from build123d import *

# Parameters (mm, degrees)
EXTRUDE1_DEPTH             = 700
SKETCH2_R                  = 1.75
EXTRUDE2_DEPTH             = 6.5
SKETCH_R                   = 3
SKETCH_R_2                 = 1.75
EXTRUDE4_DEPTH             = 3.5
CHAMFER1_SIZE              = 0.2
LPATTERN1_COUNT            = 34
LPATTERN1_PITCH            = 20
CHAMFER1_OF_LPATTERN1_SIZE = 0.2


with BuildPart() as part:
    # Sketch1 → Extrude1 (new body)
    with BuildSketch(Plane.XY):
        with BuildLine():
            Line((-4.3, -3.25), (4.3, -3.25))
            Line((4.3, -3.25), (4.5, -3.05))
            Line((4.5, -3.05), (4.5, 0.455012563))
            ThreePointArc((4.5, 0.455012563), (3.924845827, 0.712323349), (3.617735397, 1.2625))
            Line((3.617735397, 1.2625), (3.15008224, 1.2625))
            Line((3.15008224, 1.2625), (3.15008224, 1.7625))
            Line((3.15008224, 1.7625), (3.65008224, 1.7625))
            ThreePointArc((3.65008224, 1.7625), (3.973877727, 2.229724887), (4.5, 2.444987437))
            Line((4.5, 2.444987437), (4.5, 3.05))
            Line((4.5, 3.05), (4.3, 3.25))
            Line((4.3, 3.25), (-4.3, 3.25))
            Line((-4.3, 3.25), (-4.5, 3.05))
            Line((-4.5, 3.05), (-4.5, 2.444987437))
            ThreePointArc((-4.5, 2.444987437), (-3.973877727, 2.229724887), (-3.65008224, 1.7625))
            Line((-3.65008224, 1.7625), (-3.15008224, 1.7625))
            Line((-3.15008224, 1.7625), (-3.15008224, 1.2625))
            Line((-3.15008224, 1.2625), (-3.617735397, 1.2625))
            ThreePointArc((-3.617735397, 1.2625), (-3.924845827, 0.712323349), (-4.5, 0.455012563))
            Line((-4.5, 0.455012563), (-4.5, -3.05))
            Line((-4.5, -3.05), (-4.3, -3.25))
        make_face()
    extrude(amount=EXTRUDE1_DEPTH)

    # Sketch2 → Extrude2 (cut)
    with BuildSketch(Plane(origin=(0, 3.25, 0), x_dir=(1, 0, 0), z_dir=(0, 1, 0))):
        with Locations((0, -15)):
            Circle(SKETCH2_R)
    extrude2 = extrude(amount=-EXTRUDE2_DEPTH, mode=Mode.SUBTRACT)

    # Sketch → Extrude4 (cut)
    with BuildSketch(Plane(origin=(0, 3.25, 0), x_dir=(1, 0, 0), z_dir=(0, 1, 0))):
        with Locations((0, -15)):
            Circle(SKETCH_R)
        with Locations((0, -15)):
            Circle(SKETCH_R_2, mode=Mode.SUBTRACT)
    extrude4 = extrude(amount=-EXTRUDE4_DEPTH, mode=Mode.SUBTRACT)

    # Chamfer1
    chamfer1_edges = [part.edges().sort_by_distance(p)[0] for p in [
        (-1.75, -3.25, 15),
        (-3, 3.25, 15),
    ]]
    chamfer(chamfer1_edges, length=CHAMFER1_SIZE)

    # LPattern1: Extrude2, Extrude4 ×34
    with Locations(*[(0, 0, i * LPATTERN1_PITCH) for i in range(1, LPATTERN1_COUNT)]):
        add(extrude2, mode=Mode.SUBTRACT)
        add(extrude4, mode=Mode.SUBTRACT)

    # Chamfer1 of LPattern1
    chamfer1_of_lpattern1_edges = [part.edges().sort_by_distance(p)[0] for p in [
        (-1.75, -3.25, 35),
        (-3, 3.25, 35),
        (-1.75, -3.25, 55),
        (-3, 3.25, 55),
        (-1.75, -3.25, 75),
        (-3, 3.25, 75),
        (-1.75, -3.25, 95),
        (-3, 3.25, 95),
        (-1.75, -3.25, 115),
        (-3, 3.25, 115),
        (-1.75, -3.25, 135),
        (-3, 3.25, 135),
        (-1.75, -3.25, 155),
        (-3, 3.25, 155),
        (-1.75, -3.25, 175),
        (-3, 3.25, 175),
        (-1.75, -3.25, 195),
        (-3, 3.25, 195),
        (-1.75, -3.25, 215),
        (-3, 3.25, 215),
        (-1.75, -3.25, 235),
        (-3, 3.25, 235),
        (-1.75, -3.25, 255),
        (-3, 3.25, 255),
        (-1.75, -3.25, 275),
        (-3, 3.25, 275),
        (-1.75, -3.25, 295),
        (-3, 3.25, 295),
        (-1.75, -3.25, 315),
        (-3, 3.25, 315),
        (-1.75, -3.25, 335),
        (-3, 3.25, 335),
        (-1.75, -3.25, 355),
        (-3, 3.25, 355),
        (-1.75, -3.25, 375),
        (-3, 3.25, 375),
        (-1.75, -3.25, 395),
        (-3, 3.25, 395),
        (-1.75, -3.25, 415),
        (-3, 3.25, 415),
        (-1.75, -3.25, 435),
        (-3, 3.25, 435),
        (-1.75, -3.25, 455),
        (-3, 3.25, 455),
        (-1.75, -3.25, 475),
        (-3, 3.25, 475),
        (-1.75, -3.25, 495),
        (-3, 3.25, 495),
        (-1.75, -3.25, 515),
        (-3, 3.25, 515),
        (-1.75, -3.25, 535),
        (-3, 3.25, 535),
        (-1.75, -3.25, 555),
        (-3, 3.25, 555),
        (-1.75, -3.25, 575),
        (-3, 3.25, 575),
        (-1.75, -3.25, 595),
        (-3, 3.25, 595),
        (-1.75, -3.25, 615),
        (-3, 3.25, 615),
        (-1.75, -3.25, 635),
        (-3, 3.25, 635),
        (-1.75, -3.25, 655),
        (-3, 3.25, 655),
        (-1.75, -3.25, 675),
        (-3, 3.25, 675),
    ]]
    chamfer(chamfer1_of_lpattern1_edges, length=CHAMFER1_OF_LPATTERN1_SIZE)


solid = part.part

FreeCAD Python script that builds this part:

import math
import FreeCAD as App
import Part
import Sketcher


def edges_at(feature, points):
    """Names of the edges that pass closest to the given points."""
    edges = feature.Shape.Edges
    near = lambda p: min(range(len(edges)), key=lambda i: edges[i].distToShape(Part.Vertex(*p))[0])
    return sorted({f"Edge{near(p) + 1}" for p in points})

doc = App.newDocument("Part")
body = doc.addObject("PartDesign::Body", "Body")

# Sketch on XY plane
sketch1 = body.newObject("Sketcher::SketchObject", "Sketch")
sketch1.AttachmentSupport = (doc.getObject("XY_Plane"), [""])
sketch1.MapMode = "FlatFace"
sketch1.addGeometry([
    Part.LineSegment(App.Vector(-4.3, -3.25, 0), App.Vector(4.3, -3.25, 0)),  # 0
    Part.LineSegment(App.Vector(4.3, -3.25, 0), App.Vector(4.5, -3.05, 0)),  # 1
    Part.LineSegment(App.Vector(4.5, -3.05, 0), App.Vector(4.5, 0.455013, 0)),  # 2
    Part.ArcOfCircle(Part.Circle(App.Vector(4.6, 1.45, 0), App.Vector(0, 0, 1), 1), math.radians(-169.193077), math.radians(-95.739171)),  # 3
    Part.LineSegment(App.Vector(3.617735, 1.2625, 0), App.Vector(3.150082, 1.2625, 0)),  # 4
    Part.LineSegment(App.Vector(3.150082, 1.2625, 0), App.Vector(3.150082, 1.7625, 0)),  # 5
    Part.LineSegment(App.Vector(3.150082, 1.7625, 0), App.Vector(3.650082, 1.7625, 0)),  # 6
    Part.ArcOfCircle(Part.Circle(App.Vector(4.6, 1.45, 0), App.Vector(0, 0, 1), 1), math.radians(95.73917), math.radians(161.790043)),  # 7
    Part.LineSegment(App.Vector(4.5, 2.444987, 0), App.Vector(4.5, 3.05, 0)),  # 8
    Part.LineSegment(App.Vector(4.5, 3.05, 0), App.Vector(4.3, 3.25, 0)),  # 9
    Part.LineSegment(App.Vector(4.3, 3.25, 0), App.Vector(-4.3, 3.25, 0)),  # 10
    Part.LineSegment(App.Vector(-4.3, 3.25, 0), App.Vector(-4.5, 3.05, 0)),  # 11
    Part.LineSegment(App.Vector(-4.5, 3.05, 0), App.Vector(-4.5, 2.444987, 0)),  # 12
    Part.ArcOfCircle(Part.Circle(App.Vector(-4.6, 1.45, 0), App.Vector(0, 0, 1), 1), math.radians(18.209957), math.radians(84.26083)),  # 13
    Part.LineSegment(App.Vector(-3.650082, 1.7625, 0), App.Vector(-3.150082, 1.7625, 0)),  # 14
    Part.LineSegment(App.Vector(-3.150082, 1.7625, 0), App.Vector(-3.150082, 1.2625, 0)),  # 15
    Part.LineSegment(App.Vector(-3.150082, 1.2625, 0), App.Vector(-3.617735, 1.2625, 0)),  # 16
    Part.ArcOfCircle(Part.Circle(App.Vector(-4.6, 1.45, 0), App.Vector(0, 0, 1), 1), math.radians(-84.260829), math.radians(-10.806923)),  # 17
    Part.LineSegment(App.Vector(-4.5, 0.455013, 0), App.Vector(-4.5, -3.05, 0)),  # 18
    Part.LineSegment(App.Vector(-4.5, -3.05, 0), App.Vector(-4.3, -3.25, 0)),  # 19
], False)
sketch1.addConstraint([
    Sketcher.Constraint("Coincident", 0, 2, 1, 1),
    Sketcher.Constraint("Coincident", 1, 2, 2, 1),
    Sketcher.Constraint("Coincident", 2, 2, 3, 2),
    Sketcher.Constraint("Coincident", 3, 1, 4, 1),
    Sketcher.Constraint("Coincident", 4, 2, 5, 1),
    Sketcher.Constraint("Coincident", 5, 2, 6, 1),
    Sketcher.Constraint("Coincident", 6, 2, 7, 2),
    Sketcher.Constraint("Coincident", 7, 1, 8, 1),
    Sketcher.Constraint("Coincident", 8, 2, 9, 1),
    Sketcher.Constraint("Coincident", 9, 2, 10, 1),
    Sketcher.Constraint("Coincident", 10, 2, 11, 1),
    Sketcher.Constraint("Coincident", 11, 2, 12, 1),
    Sketcher.Constraint("Coincident", 12, 2, 13, 2),
    Sketcher.Constraint("Coincident", 13, 1, 14, 1),
    Sketcher.Constraint("Coincident", 14, 2, 15, 1),
    Sketcher.Constraint("Coincident", 15, 2, 16, 1),
    Sketcher.Constraint("Coincident", 16, 2, 17, 2),
    Sketcher.Constraint("Coincident", 17, 1, 18, 1),
    Sketcher.Constraint("Coincident", 18, 2, 19, 1),
    Sketcher.Constraint("Coincident", 19, 2, 0, 1),
    Sketcher.Constraint("Horizontal", 0),
    Sketcher.Constraint("Vertical", 2),
    Sketcher.Constraint("Horizontal", 4),
    Sketcher.Constraint("Vertical", 5),
    Sketcher.Constraint("Horizontal", 6),
    Sketcher.Constraint("Vertical", 8),
    Sketcher.Constraint("Horizontal", 10),
    Sketcher.Constraint("Vertical", 12),
    Sketcher.Constraint("Horizontal", 14),
    Sketcher.Constraint("Vertical", 15),
    Sketcher.Constraint("Horizontal", 16),
    Sketcher.Constraint("Vertical", 18),
    Sketcher.Constraint("Coincident", 7, 3, 3, 3),
    Sketcher.Constraint("Coincident", 17, 3, 13, 3),
    Sketcher.Constraint("Equal", 3, 7),
    Sketcher.Constraint("Equal", 7, 13),
    Sketcher.Constraint("Equal", 13, 17),
    Sketcher.Constraint("Symmetric", 0, 2, 10, 2, -1, 1),
    Sketcher.Constraint("Symmetric", 1, 2, 11, 2, -1, 1),
    Sketcher.Constraint("Symmetric", 8, 2, 18, 2, -1, 1),
    Sketcher.Constraint("Symmetric", 3, 3, 13, 3, -2),
    Sketcher.Constraint("Symmetric", 8, 2, 11, 2, -2),
    Sketcher.Constraint("Symmetric", 5, 2, 14, 2, -2),
    Sketcher.Constraint("Perpendicular", 1, 9),
    Sketcher.Constraint("Perpendicular", 11, 19),
    Sketcher.Constraint("Horizontal", 4, 2, 15, 2),
    Sketcher.Constraint("Vertical", 0, 2, 9, 2),
    Sketcher.Constraint("Equal", 14, 5),
    Sketcher.Constraint("Radius", 3, 1.0),
    Sketcher.Constraint("DistanceX", 0, 1, 0, 2, 8.6),
    Sketcher.Constraint("DistanceX", 6, 1, 6, 2, 0.5),
    Sketcher.Constraint("DistanceX", -1, 1, 3, 3, 4.6),
    Sketcher.Constraint("DistanceX", -1, 1, 1, 2, 4.5),
    Sketcher.Constraint("DistanceY", 0, 2, 7, 3, 4.7),
    Sketcher.Constraint("DistanceY", 3, 3, 8, 2, 1.6),
    Sketcher.Constraint("DistanceY", -1, 1, 3, 1, 1.2625),
])
pad1 = body.newObject("PartDesign::Pad", "Pad")
pad1.Profile = sketch1
pad1.Length = 700

# Sketch on XZ plane
sketch2 = body.newObject("Sketcher::SketchObject", "Sketch001")
sketch2.AttachmentSupport = (doc.getObject("XZ_Plane"), [""])
sketch2.MapMode = "FlatFace"
sketch2.AttachmentOffset = App.Placement(App.Vector(0, 0, -3.25), App.Rotation())
sketch2.addGeometry(Part.Circle(App.Vector(0, 15, 0), App.Vector(0, 0, 1), 1.75), False)
sketch2.addConstraint([
    Sketcher.Constraint("PointOnObject", 0, 3, -2),
    Sketcher.Constraint("Diameter", 0, 3.5),
    Sketcher.Constraint("DistanceY", -1, 1, 0, 3, 15.0),
])
pocket1 = body.newObject("PartDesign::Pocket", "Pocket")
pocket1.Profile = sketch2
pocket1.Length = 6.5
pocket1.Reversed = True

# Sketch on XZ plane
sketch3 = body.newObject("Sketcher::SketchObject", "Sketch002")
sketch3.AttachmentSupport = (doc.getObject("XZ_Plane"), [""])
sketch3.MapMode = "FlatFace"
sketch3.AttachmentOffset = App.Placement(App.Vector(0, 0, -3.25), App.Rotation())
sketch3.addGeometry([
    Part.Circle(App.Vector(0, 15, 0), App.Vector(0, 0, 1), 3),
    Part.Circle(App.Vector(0, 15, 0), App.Vector(0, 0, 1), 1.75),
], False)
sketch3.addConstraint([
    Sketcher.Constraint("Coincident", 1, 3, 0, 3),
    Sketcher.Constraint("PointOnObject", 0, 3, -2),
    Sketcher.Constraint("Diameter", 0, 6.0),
    Sketcher.Constraint("Diameter", 1, 3.5),
    Sketcher.Constraint("DistanceY", -1, 1, 0, 3, 15.0),
])
pocket2 = body.newObject("PartDesign::Pocket", "Pocket001")
pocket2.Profile = sketch3
pocket2.Length = 3.5
pocket2.Reversed = True
doc.recompute()

chamfer = body.newObject("PartDesign::Chamfer", "Chamfer")
chamfer.Base = (pocket2, edges_at(pocket2, [(-1.75, -3.25, 15), (-3, 3.25, 15)]))
chamfer.Size = 0.2
doc.recompute()

linearpattern = body.newObject("PartDesign::LinearPattern", "LinearPattern")
linearpattern.Originals = [pocket1, pocket2]
linearpattern.Direction = (doc.getObject("Z_Axis"), [""])
linearpattern.Mode = "offset"
linearpattern.Offset = 20
linearpattern.Occurrences = 34
body.Tip = linearpattern
doc.recompute()

chamfer2 = body.newObject("PartDesign::Chamfer", "Chamfer001")
chamfer2.Base = (linearpattern, edges_at(linearpattern, [
    (-1.75, -3.25, 35),
    (-3, 3.25, 35),
    (-1.75, -3.25, 55),
    (-3, 3.25, 55),
    (-1.75, -3.25, 75),
    (-3, 3.25, 75),
    (-1.75, -3.25, 95),
    (-3, 3.25, 95),
    (-1.75, -3.25, 115),
    (-3, 3.25, 115),
    (-1.75, -3.25, 135),
    (-3, 3.25, 135),
    (-1.75, -3.25, 155),
    (-3, 3.25, 155),
    (-1.75, -3.25, 175),
    (-3, 3.25, 175),
    (-1.75, -3.25, 195),
    (-3, 3.25, 195),
    (-1.75, -3.25, 215),
    (-3, 3.25, 215),
    (-1.75, -3.25, 235),
    (-3, 3.25, 235),
    (-1.75, -3.25, 255),
    (-3, 3.25, 255),
    (-1.75, -3.25, 275),
    (-3, 3.25, 275),
    (-1.75, -3.25, 295),
    (-3, 3.25, 295),
    (-1.75, -3.25, 315),
    (-3, 3.25, 315),
    (-1.75, -3.25, 335),
    (-3, 3.25, 335),
    (-1.75, -3.25, 355),
    (-3, 3.25, 355),
    (-1.75, -3.25, 375),
    (-3, 3.25, 375),
    (-1.75, -3.25, 395),
    (-3, 3.25, 395),
    (-1.75, -3.25, 415),
    (-3, 3.25, 415),
    (-1.75, -3.25, 435),
    (-3, 3.25, 435),
    (-1.75, -3.25, 455),
    (-3, 3.25, 455),
    (-1.75, -3.25, 475),
    (-3, 3.25, 475),
    (-1.75, -3.25, 495),
    (-3, 3.25, 495),
    (-1.75, -3.25, 515),
    (-3, 3.25, 515),
    (-1.75, -3.25, 535),
    (-3, 3.25, 535),
    (-1.75, -3.25, 555),
    (-3, 3.25, 555),
    (-1.75, -3.25, 575),
    (-3, 3.25, 575),
    (-1.75, -3.25, 595),
    (-3, 3.25, 595),
    (-1.75, -3.25, 615),
    (-3, 3.25, 615),
    (-1.75, -3.25, 635),
    (-3, 3.25, 635),
    (-1.75, -3.25, 655),
    (-3, 3.25, 655),
    (-1.75, -3.25, 675),
    (-3, 3.25, 675),
]))
chamfer2.Size = 0.2

doc.recompute()
